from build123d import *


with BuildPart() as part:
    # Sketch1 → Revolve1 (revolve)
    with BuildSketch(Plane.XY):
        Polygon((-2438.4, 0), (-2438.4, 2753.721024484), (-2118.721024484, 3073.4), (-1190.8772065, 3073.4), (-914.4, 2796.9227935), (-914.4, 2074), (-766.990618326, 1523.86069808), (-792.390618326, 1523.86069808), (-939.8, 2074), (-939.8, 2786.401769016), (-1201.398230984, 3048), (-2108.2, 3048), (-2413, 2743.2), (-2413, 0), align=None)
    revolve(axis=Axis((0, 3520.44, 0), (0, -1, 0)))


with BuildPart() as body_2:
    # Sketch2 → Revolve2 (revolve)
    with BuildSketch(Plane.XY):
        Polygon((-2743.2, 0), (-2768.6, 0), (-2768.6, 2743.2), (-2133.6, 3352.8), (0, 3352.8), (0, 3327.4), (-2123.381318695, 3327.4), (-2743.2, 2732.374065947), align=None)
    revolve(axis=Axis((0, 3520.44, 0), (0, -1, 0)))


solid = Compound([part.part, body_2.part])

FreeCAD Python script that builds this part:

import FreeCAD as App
import Part
import Sketcher
Q = App.Units.Quantity


def add_polygon(sketch, points):
    """Adds a closed chain of lines whose ends are joined by coincident constraints."""
    first, n = sketch.GeometryCount, len(points)
    for a, b in zip(points, points[1:] + points[:1]):
        sketch.addGeometry(Part.LineSegment(App.Vector(*a, 0), App.Vector(*b, 0)), False)
    for i in range(n):
        sketch.addConstraint(Sketcher.Constraint("Coincident", first + i, 2, first + (i + 1) % n, 1))

doc = App.newDocument("Part")
params = doc.addObject("Spreadsheet::Sheet", "Params")
for row, (alias, value) in enumerate([
    ("sketch1_width", "1 in"),
    ("sketch1_height", "108 in"),
    ("revolution_angle", "360 deg"),
    ("sketch2_width", "1 in"),
    ("sketch2_width2", "84 in"),
    ("sketch2_height", "108 in"),
    ("revolution2_angle", "360 deg"),
], start=1):
    params.set(f"A{row}", alias)
    params.set(f"B{row}", "=" + value)
    params.setAlias(f"B{row}", alias)

body = doc.addObject("PartDesign::Body", "Body")

sketch1 = body.newObject("Sketcher::SketchObject", "Sketch")
sketch1.AttachmentSupport = (doc.getObject("XY_Plane"), [""])
sketch1.MapMode = "FlatFace"
add_polygon(sketch1, [(-2438, 2754), (-2438, 0), (-2413, 0), (-2413, 2743), (-2108, 3048), (-1201, 3048), (-940, 2786), (-940, 2074), (-792, 1524), (-767, 1524), (-914, 2074), (-914, 2797), (-1191, 3073), (-2119, 3073)])
sketch1.addConstraint(Sketcher.Constraint("Vertical", 0))
sketch1.addConstraint(Sketcher.Constraint("Horizontal", 1))
sketch1.addConstraint(Sketcher.Constraint("Vertical", 2))
sketch1.addConstraint(Sketcher.Constraint("Horizontal", 4))
sketch1.addConstraint(Sketcher.Constraint("Vertical", 6))
sketch1.addConstraint(Sketcher.Constraint("Horizontal", 8))
sketch1.addConstraint(Sketcher.Constraint("Vertical", 10))
sketch1.addConstraint(Sketcher.Constraint("Horizontal", 12))
sketch1.addConstraint(Sketcher.Constraint("PointOnObject", 0, 2, -1))
sketch1.addConstraint(Sketcher.Constraint("Perpendicular", 3, 5))
sketch1.addConstraint(Sketcher.Constraint("Parallel", 7, 9))
sketch1.addConstraint(Sketcher.Constraint("Parallel", 5, 11))
sketch1.addConstraint(Sketcher.Constraint("Perpendicular", 11, 13))
sketch1.addConstraint(Sketcher.Constraint("Horizontal", 6, 2, 9, 2))
sketch1.addConstraint(Sketcher.Constraint("Equal", 1, 8))
sketch1.addConstraint(Sketcher.Constraint("DistanceX", 1, 1, 1, 2, Q("1 in")))
sketch1.addConstraint(Sketcher.Constraint("DistanceY", 2, 1, 2, 2, Q("108 in")))
sketch1.addConstraint(Sketcher.Constraint("DistanceX", 0, 2, -1, 1, Q("96 in")))
sketch1.addConstraint(Sketcher.Constraint("DistanceX", 3, 2, -1, 1, Q("83 in")))
sketch1.addConstraint(Sketcher.Constraint("DistanceY", -1, 1, 3, 2, Q("120 in")))
sketch1.addConstraint(Sketcher.Constraint("DistanceX", 5, 2, -1, 1, Q("37 in")))
sketch1.addConstraint(Sketcher.Constraint("DistanceY", -1, 1, 11, 2, Q("121 in")))
sketch1.addConstraint(Sketcher.Constraint("Angle", 7, Q("-75 deg")))
sketch1.addConstraint(Sketcher.Constraint("DistanceX", 4, 1, 4, 2, Q("906.801769 mm")))
sketch1.addConstraint(Sketcher.Constraint("DistanceY", 6, 2, 6, 1, Q("712.401769 mm")))
sketch1.addConstraint(Sketcher.Constraint("DistanceY", -1, 1, 7, 2, Q("1523.860698 mm")))
sketch1.addConstraint(Sketcher.Constraint("DistanceX", 12, 2, 12, 1, Q("927.843818 mm")))
sketch1.addConstraint(Sketcher.Constraint("DistanceY", 0, 2, 0, 1, Q("2753.721024 mm")))
sketch1.setExpression("Constraints[29]", "Params.sketch1_width")
sketch1.setExpression("Constraints[30]", "Params.sketch1_height")
revolution = body.newObject("PartDesign::Revolution", "Revolution")
revolution.Profile = sketch1
revolution.ReferenceAxis = (sketch1, ["V_Axis"])
revolution.setExpression("Angle", "Params.revolution_angle")
body2 = doc.addObject("PartDesign::Body", "Body001")

sketch2 = body2.newObject("Sketcher::SketchObject", "Sketch001")
sketch2.AttachmentSupport = (doc.getObject("XY_Plane001"), [""])
sketch2.MapMode = "FlatFace"
add_polygon(sketch2, [(-2769, 0), (-2743, 0), (-2743, 2732), (-2123, 3327), (0, 3327), (0, 3353), (-2134, 3353), (-2769, 2743)])
sketch2.addConstraint(Sketcher.Constraint("Horizontal", 0))
sketch2.addConstraint(Sketcher.Constraint("Vertical", 1))
sketch2.addConstraint(Sketcher.Constraint("Horizontal", 3))
sketch2.addConstraint(Sketcher.Constraint("Vertical", 4))
sketch2.addConstraint(Sketcher.Constraint("Horizontal", 5))
sketch2.addConstraint(Sketcher.Constraint("Vertical", 7))
sketch2.addConstraint(Sketcher.Constraint("PointOnObject", 0, 2, -1))
sketch2.addConstraint(Sketcher.Constraint("PointOnObject", 3, 2, -2))
sketch2.addConstraint(Sketcher.Constraint("Parallel", 2, 6))
sketch2.addConstraint(Sketcher.Constraint("Equal", 0, 4))
sketch2.addConstraint(Sketcher.Constraint("DistanceX", 0, 1, 0, 2, Q("1 in")))
sketch2.addConstraint(Sketcher.Constraint("DistanceX", 5, 2, 5, 1, Q("84 in")))
sketch2.addConstraint(Sketcher.Constraint("DistanceY", 7, 2, 7, 1, Q("108 in")))
sketch2.addConstraint(Sketcher.Constraint("DistanceX", 0, 2, -1, 1, Q("108 in")))
sketch2.addConstraint(Sketcher.Constraint("DistanceY", -1, 1, 2, 2, Q("131 in")))
sketch2.addConstraint(Sketcher.Constraint("DistanceX", 3, 1, 3, 2, Q("2123.381319 mm")))
sketch2.setExpression("Constraints[18]", "Params.sketch2_width")
sketch2.setExpression("Constraints[19]", "Params.sketch2_width2")
sketch2.setExpression("Constraints[20]", "Params.sketch2_height")
revolution2 = body2.newObject("PartDesign::Revolution", "Revolution001")
revolution2.Profile = sketch2
revolution2.ReferenceAxis = (sketch2, ["V_Axis"])
revolution2.setExpression("Angle", "Params.revolution2_angle")

doc.recompute()
